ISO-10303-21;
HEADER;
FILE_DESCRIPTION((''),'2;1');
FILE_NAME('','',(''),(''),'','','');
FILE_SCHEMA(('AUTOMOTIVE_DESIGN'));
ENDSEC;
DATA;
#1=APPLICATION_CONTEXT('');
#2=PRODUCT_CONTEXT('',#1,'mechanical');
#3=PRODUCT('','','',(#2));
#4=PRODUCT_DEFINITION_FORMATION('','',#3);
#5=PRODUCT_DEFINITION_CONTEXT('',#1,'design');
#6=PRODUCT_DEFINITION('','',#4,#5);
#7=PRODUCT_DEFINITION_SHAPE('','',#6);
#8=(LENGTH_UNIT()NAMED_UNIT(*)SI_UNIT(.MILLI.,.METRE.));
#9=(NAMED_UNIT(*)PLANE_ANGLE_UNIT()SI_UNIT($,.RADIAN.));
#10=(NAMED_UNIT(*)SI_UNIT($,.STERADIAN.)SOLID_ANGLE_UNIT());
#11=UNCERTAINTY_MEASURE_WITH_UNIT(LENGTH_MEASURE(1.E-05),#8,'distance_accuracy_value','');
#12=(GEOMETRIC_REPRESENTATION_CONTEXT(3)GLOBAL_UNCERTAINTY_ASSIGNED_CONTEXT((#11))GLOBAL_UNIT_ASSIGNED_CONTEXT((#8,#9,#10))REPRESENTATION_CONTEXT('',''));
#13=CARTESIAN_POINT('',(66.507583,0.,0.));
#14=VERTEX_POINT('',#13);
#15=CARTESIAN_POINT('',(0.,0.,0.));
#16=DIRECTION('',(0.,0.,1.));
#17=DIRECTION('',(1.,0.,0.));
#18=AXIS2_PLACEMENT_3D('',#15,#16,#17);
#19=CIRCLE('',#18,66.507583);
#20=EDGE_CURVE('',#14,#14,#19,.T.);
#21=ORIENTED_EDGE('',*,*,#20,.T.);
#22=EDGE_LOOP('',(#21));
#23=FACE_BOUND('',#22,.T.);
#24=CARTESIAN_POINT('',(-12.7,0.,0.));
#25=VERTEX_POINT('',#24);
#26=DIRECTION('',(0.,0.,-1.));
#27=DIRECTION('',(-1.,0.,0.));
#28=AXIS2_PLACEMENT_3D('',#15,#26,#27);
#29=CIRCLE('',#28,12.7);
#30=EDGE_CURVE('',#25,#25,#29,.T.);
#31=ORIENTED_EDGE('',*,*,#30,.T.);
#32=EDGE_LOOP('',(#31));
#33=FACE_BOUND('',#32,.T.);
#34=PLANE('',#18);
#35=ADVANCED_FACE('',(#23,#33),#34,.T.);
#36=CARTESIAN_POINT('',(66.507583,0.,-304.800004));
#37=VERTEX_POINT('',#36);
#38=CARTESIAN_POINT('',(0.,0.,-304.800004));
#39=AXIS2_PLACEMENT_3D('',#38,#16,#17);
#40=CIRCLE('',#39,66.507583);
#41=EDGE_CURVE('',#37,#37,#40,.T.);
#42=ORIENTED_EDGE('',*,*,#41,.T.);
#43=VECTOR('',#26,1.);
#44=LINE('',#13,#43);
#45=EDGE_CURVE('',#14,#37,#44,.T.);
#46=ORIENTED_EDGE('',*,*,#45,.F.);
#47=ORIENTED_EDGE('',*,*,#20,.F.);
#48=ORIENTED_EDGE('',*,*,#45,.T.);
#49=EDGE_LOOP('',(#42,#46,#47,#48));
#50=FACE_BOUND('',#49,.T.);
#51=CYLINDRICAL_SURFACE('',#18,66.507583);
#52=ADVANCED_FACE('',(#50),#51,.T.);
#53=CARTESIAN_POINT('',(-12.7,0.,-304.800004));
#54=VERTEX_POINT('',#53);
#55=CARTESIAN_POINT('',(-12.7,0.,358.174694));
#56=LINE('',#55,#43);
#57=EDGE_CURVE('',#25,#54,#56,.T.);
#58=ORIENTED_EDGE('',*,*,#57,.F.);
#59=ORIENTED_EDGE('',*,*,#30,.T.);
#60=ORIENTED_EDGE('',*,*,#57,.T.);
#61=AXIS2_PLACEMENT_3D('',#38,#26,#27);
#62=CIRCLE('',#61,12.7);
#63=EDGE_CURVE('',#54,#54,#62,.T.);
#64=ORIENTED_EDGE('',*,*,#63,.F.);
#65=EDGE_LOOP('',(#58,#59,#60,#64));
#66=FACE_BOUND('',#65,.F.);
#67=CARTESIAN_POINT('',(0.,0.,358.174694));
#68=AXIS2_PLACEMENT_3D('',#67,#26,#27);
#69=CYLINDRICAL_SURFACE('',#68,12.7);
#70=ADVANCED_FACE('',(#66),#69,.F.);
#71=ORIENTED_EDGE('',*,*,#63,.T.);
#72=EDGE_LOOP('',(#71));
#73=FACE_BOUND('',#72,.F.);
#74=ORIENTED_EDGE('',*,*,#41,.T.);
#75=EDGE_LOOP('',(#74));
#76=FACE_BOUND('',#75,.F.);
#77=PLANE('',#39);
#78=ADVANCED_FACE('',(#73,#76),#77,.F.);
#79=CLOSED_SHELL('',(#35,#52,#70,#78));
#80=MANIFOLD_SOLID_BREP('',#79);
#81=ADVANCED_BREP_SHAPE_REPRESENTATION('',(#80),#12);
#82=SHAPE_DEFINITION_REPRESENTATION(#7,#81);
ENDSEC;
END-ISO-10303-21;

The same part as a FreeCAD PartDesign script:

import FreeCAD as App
import Part
import Sketcher

V = App.Vector
Q = App.Units.Quantity

doc = App.newDocument("Part")
body = doc.addObject("PartDesign::Body", "Body")

sketch1 = body.newObject("Sketcher::SketchObject", "Sketch")
sketch1.AttachmentSupport = (doc.getObject("XY_Plane"), [""])
sketch1.MapMode = "FlatFace"
sketch1.addGeometry(Part.Circle(V(0, 0, 0), V(0, 0, 1), 67), False)
sketch1.addConstraint([
    Sketcher.Constraint("Coincident", 0, 3, -1, 1),
    Sketcher.Constraint("Diameter", 0, 133.015166),
])
pad1 = body.newObject("PartDesign::Pad", "Pad")
pad1.Profile = sketch1
pad1.Length = Q("12.0000002 in")
pad1.Reversed = True

sketch2 = body.newObject("Sketcher::SketchObject", "Sketch001")
sketch2.AttachmentSupport = (doc.getObject("XY_Plane"), [""])
sketch2.MapMode = "FlatFace"
sketch2.addGeometry(Part.Circle(V(0, 0, 0), V(0, 0, 1), 13), False)
sketch2.addConstraint([
    Sketcher.Constraint("Coincident", 0, 3, -1, 1),
    Sketcher.Constraint("Diameter", 0, Q("1 in")),
])
doc.recompute()
hole = body.newObject("PartDesign::Hole", "Hole")
hole.Profile = sketch2
hole.ThreadType = "None"
hole.Diameter = Q("1 in")
hole.DepthType = "ThroughAll"

doc.recompute()
